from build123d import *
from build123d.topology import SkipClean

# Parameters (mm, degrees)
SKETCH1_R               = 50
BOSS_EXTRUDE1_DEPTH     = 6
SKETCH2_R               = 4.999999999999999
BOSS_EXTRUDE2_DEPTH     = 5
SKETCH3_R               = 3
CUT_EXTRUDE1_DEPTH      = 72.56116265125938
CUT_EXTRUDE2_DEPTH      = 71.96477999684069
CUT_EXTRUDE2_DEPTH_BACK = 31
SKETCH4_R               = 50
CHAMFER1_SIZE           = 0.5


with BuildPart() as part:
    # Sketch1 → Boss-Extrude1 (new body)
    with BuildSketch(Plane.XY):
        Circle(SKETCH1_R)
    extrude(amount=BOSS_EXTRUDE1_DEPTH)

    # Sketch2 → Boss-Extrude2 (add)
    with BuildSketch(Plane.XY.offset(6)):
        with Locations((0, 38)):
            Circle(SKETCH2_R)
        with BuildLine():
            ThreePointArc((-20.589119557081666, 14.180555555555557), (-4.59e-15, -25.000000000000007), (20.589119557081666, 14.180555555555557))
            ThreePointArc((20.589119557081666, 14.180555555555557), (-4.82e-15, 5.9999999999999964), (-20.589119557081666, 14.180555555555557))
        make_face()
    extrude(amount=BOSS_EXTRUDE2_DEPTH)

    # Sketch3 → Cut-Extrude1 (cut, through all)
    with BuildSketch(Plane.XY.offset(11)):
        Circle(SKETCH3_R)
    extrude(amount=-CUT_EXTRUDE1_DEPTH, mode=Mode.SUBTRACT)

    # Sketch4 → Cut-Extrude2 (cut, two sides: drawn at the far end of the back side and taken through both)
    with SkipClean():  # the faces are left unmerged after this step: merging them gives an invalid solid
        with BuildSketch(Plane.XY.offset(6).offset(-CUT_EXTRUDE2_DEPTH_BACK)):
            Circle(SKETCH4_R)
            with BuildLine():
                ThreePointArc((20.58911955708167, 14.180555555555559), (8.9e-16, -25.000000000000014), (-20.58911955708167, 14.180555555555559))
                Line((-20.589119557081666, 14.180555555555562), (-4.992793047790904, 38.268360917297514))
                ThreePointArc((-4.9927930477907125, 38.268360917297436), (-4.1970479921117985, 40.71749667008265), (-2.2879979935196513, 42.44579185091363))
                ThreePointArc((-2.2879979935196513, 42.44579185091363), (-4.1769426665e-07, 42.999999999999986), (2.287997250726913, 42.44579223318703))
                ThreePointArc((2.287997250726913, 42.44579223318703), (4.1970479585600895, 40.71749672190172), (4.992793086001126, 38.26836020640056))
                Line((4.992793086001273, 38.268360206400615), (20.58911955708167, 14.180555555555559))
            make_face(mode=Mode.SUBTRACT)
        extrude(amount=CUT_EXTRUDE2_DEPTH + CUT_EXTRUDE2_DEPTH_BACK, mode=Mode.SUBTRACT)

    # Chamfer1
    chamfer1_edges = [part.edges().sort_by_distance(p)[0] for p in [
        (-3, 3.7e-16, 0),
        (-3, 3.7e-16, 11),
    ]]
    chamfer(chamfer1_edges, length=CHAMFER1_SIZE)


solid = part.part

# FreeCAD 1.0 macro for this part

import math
import FreeCAD as App
import Part
import Sketcher


def edges_at(feature, points):
    """Names of the edges that pass closest to the given points."""
    edges = feature.Shape.Edges
    near = lambda p: min(range(len(edges)), key=lambda i: edges[i].distToShape(Part.Vertex(*p))[0])
    return sorted({f"Edge{near(p) + 1}" for p in points})

doc = App.newDocument("Part")
params = doc.addObject("Spreadsheet::Sheet", "Params")
for row, (alias, value) in enumerate([
    ("sketch1_diameter", "100 mm"),
    ("pad1_length", "6 mm"),
    ("sketch2_diameter", "10 mm"),
    ("sketch2_radius", "25 mm"),
    ("sketch2_radius2", "30 mm"),
    ("pad2_length", "5 mm"),
    ("sketch3_diameter", "6 mm"),
    ("sketch4_diameter", "100 mm"),
    ("sketch4_radius", "25 mm"),
    ("sketch4_radius2", "5 mm"),
    ("chamfer_size", "0.5 mm"),
], start=1):
    params.set(f"A{row}", alias)
    params.set(f"B{row}", "=" + value)
    params.setAlias(f"B{row}", alias)

body = doc.addObject("PartDesign::Body", "Body")

# Sketch on XY plane
sketch1 = body.newObject("Sketcher::SketchObject", "Sketch")
sketch1.AttachmentSupport = (doc.getObject("XY_Plane"), [""])
sketch1.MapMode = "FlatFace"
sketch1.addGeometry(Part.Circle(App.Vector(0, 0, 0), App.Vector(0, 0, 1), 50), False)
sketch1.addConstraint([
    Sketcher.Constraint("Coincident", 0, 3, -1, 1),
    Sketcher.Constraint("Diameter", 0, 100.0),
])
sketch1.setExpression("Constraints[1]", "Params.sketch1_diameter")
pad1 = body.newObject("PartDesign::Pad", "Pad")
pad1.Profile = sketch1
pad1.setExpression("Length", "Params.pad1_length")

# Sketch on XY plane
sketch2 = body.newObject("Sketcher::SketchObject", "Sketch001")
sketch2.AttachmentSupport = (doc.getObject("XY_Plane"), [""])
sketch2.MapMode = "FlatFace"
sketch2.AttachmentOffset = App.Placement(App.Vector(0, 0, 6), App.Rotation())
sketch2.addGeometry([
    Part.Circle(App.Vector(0, 38, 0), App.Vector(0, 0, 1), 5),
    Part.ArcOfCircle(Part.Circle(App.Vector(0, 0, 0), App.Vector(0, 0, 1), 25), math.radians(145.443251), math.radians(394.556749)),
    Part.ArcOfCircle(Part.Circle(App.Vector(0, 36, 0), App.Vector(0, 0, 1), 30), math.radians(-133.338245), math.radians(-46.661755)),
], False)
sketch2.addConstraint([
    Sketcher.Constraint("Coincident", 1, 1, 2, 1),
    Sketcher.Constraint("Coincident", 2, 2, 1, 2),
    Sketcher.Constraint("Coincident", 1, 3, -1, 1),
    Sketcher.Constraint("PointOnObject", 0, 3, -2),
    Sketcher.Constraint("PointOnObject", 2, 3, -2),
    Sketcher.Constraint("Diameter", 0, 10.0),
    Sketcher.Constraint("Radius", 1, 25.0),
    Sketcher.Constraint("Radius", 2, 30.0),
    Sketcher.Constraint("DistanceY", -1, 1, 0, 3, 38.0),
    Sketcher.Constraint("DistanceY", -1, 1, 2, 3, 36.0),
])
sketch2.setExpression("Constraints[5]", "Params.sketch2_diameter")
sketch2.setExpression("Constraints[6]", "Params.sketch2_radius")
sketch2.setExpression("Constraints[7]", "Params.sketch2_radius2")
pad2 = body.newObject("PartDesign::Pad", "Pad001")
pad2.Profile = sketch2
pad2.setExpression("Length", "Params.pad2_length")

# Sketch on XY plane
sketch3 = body.newObject("Sketcher::SketchObject", "Sketch002")
sketch3.AttachmentSupport = (doc.getObject("XY_Plane"), [""])
sketch3.MapMode = "FlatFace"
sketch3.AttachmentOffset = App.Placement(App.Vector(0, 0, 11), App.Rotation())
sketch3.addGeometry(Part.Circle(App.Vector(0, 0, 0), App.Vector(0, 0, 1), 3), False)
sketch3.addConstraint([
    Sketcher.Constraint("Coincident", 0, 3, -1, 1),
    Sketcher.Constraint("Diameter", 0, 6.0),
])
sketch3.setExpression("Constraints[1]", "Params.sketch3_diameter")
pocket1 = body.newObject("PartDesign::Pocket", "Pocket")
pocket1.Profile = sketch3
pocket1.Type = "ThroughAll"

# Sketch on XY plane
sketch4 = body.newObject("Sketcher::SketchObject", "Sketch003")
sketch4.AttachmentSupport = (doc.getObject("XY_Plane"), [""])
sketch4.MapMode = "FlatFace"
sketch4.AttachmentOffset = App.Placement(App.Vector(0, 0, 6), App.Rotation())
sketch4.addGeometry([
    Part.Circle(App.Vector(0, 0, 0), App.Vector(0, 0, 1), 50),  # 0
    Part.LineSegment(App.Vector(4.992793, 38.26836, 0), App.Vector(20.58912, 14.180556, 0)),  # 1
    Part.ArcOfCircle(Part.Circle(App.Vector(0, 0, 0), App.Vector(0, 0, 1), 25), math.radians(145.443251), math.radians(394.556749)),  # 2
    Part.LineSegment(App.Vector(-20.58912, 14.180556, 0), App.Vector(-4.992793, 38.268361, 0)),  # 3
    Part.ArcOfCircle(Part.Circle(App.Vector(0, 38, 0), App.Vector(0, 0, 1), 5), math.radians(117.232322), math.radians(176.923332)),  # 4
    Part.ArcOfCircle(Part.Circle(App.Vector(0, 38, 0), App.Vector(0, 0, 1), 5), math.radians(62.767687), math.radians(117.232322)),  # 5
    Part.ArcOfCircle(Part.Circle(App.Vector(0, 38, 0), App.Vector(0, 0, 1), 5), math.radians(3.07666), math.radians(62.767687)),  # 6
], False)
sketch4.addConstraint([
    Sketcher.Constraint("Coincident", 1, 2, 2, 2),
    Sketcher.Constraint("Coincident", 2, 1, 3, 1),
    Sketcher.Constraint("Coincident", 3, 2, 4, 2),
    Sketcher.Constraint("Tangent", 4, 1, 5, 2),
    Sketcher.Constraint("Tangent", 5, 1, 6, 2),
    Sketcher.Constraint("Coincident", 6, 1, 1, 1),
    Sketcher.Constraint("Coincident", 0, 3, -1, 1),
    Sketcher.Constraint("Coincident", 2, 3, -1, 1),
    Sketcher.Constraint("Coincident", 6, 3, 4, 3),
    Sketcher.Constraint("Symmetric", 4, 1, 5, 1, -2),
    Sketcher.Constraint("Horizontal", 1, 2, 2, 1),
    Sketcher.Constraint("Horizontal", 3, 2, 6, 1),
    Sketcher.Constraint("Diameter", 0, 100.0),
    Sketcher.Constraint("Radius", 2, 25.0),
    Sketcher.Constraint("Radius", 4, 5.0),
    Sketcher.Constraint("DistanceY", -1, 1, 4, 3, 38.0),
    Sketcher.Constraint("Distance", 3, 28.696128),
    Sketcher.Constraint("DistanceX", -1, 1, 1, 2, 20.58912),
    Sketcher.Constraint("DistanceY", -1, 1, 4, 1, 42.445792),
])
sketch4.setExpression("Constraints[12]", "Params.sketch4_diameter")
sketch4.setExpression("Constraints[13]", "Params.sketch4_radius")
sketch4.setExpression("Constraints[14]", "Params.sketch4_radius2")
pocket2 = body.newObject("PartDesign::Pocket", "Pocket001")
pocket2.Profile = sketch4
pocket2.Type = "ThroughAll"
pocket2.Midplane = True
doc.recompute()

chamfer = body.newObject("PartDesign::Chamfer", "Chamfer")
chamfer.Base = (pocket2, edges_at(pocket2, [(-3, 0, 0), (-3, 0, 11)]))
chamfer.setExpression("Size", "Params.chamfer_size")

doc.recompute()
